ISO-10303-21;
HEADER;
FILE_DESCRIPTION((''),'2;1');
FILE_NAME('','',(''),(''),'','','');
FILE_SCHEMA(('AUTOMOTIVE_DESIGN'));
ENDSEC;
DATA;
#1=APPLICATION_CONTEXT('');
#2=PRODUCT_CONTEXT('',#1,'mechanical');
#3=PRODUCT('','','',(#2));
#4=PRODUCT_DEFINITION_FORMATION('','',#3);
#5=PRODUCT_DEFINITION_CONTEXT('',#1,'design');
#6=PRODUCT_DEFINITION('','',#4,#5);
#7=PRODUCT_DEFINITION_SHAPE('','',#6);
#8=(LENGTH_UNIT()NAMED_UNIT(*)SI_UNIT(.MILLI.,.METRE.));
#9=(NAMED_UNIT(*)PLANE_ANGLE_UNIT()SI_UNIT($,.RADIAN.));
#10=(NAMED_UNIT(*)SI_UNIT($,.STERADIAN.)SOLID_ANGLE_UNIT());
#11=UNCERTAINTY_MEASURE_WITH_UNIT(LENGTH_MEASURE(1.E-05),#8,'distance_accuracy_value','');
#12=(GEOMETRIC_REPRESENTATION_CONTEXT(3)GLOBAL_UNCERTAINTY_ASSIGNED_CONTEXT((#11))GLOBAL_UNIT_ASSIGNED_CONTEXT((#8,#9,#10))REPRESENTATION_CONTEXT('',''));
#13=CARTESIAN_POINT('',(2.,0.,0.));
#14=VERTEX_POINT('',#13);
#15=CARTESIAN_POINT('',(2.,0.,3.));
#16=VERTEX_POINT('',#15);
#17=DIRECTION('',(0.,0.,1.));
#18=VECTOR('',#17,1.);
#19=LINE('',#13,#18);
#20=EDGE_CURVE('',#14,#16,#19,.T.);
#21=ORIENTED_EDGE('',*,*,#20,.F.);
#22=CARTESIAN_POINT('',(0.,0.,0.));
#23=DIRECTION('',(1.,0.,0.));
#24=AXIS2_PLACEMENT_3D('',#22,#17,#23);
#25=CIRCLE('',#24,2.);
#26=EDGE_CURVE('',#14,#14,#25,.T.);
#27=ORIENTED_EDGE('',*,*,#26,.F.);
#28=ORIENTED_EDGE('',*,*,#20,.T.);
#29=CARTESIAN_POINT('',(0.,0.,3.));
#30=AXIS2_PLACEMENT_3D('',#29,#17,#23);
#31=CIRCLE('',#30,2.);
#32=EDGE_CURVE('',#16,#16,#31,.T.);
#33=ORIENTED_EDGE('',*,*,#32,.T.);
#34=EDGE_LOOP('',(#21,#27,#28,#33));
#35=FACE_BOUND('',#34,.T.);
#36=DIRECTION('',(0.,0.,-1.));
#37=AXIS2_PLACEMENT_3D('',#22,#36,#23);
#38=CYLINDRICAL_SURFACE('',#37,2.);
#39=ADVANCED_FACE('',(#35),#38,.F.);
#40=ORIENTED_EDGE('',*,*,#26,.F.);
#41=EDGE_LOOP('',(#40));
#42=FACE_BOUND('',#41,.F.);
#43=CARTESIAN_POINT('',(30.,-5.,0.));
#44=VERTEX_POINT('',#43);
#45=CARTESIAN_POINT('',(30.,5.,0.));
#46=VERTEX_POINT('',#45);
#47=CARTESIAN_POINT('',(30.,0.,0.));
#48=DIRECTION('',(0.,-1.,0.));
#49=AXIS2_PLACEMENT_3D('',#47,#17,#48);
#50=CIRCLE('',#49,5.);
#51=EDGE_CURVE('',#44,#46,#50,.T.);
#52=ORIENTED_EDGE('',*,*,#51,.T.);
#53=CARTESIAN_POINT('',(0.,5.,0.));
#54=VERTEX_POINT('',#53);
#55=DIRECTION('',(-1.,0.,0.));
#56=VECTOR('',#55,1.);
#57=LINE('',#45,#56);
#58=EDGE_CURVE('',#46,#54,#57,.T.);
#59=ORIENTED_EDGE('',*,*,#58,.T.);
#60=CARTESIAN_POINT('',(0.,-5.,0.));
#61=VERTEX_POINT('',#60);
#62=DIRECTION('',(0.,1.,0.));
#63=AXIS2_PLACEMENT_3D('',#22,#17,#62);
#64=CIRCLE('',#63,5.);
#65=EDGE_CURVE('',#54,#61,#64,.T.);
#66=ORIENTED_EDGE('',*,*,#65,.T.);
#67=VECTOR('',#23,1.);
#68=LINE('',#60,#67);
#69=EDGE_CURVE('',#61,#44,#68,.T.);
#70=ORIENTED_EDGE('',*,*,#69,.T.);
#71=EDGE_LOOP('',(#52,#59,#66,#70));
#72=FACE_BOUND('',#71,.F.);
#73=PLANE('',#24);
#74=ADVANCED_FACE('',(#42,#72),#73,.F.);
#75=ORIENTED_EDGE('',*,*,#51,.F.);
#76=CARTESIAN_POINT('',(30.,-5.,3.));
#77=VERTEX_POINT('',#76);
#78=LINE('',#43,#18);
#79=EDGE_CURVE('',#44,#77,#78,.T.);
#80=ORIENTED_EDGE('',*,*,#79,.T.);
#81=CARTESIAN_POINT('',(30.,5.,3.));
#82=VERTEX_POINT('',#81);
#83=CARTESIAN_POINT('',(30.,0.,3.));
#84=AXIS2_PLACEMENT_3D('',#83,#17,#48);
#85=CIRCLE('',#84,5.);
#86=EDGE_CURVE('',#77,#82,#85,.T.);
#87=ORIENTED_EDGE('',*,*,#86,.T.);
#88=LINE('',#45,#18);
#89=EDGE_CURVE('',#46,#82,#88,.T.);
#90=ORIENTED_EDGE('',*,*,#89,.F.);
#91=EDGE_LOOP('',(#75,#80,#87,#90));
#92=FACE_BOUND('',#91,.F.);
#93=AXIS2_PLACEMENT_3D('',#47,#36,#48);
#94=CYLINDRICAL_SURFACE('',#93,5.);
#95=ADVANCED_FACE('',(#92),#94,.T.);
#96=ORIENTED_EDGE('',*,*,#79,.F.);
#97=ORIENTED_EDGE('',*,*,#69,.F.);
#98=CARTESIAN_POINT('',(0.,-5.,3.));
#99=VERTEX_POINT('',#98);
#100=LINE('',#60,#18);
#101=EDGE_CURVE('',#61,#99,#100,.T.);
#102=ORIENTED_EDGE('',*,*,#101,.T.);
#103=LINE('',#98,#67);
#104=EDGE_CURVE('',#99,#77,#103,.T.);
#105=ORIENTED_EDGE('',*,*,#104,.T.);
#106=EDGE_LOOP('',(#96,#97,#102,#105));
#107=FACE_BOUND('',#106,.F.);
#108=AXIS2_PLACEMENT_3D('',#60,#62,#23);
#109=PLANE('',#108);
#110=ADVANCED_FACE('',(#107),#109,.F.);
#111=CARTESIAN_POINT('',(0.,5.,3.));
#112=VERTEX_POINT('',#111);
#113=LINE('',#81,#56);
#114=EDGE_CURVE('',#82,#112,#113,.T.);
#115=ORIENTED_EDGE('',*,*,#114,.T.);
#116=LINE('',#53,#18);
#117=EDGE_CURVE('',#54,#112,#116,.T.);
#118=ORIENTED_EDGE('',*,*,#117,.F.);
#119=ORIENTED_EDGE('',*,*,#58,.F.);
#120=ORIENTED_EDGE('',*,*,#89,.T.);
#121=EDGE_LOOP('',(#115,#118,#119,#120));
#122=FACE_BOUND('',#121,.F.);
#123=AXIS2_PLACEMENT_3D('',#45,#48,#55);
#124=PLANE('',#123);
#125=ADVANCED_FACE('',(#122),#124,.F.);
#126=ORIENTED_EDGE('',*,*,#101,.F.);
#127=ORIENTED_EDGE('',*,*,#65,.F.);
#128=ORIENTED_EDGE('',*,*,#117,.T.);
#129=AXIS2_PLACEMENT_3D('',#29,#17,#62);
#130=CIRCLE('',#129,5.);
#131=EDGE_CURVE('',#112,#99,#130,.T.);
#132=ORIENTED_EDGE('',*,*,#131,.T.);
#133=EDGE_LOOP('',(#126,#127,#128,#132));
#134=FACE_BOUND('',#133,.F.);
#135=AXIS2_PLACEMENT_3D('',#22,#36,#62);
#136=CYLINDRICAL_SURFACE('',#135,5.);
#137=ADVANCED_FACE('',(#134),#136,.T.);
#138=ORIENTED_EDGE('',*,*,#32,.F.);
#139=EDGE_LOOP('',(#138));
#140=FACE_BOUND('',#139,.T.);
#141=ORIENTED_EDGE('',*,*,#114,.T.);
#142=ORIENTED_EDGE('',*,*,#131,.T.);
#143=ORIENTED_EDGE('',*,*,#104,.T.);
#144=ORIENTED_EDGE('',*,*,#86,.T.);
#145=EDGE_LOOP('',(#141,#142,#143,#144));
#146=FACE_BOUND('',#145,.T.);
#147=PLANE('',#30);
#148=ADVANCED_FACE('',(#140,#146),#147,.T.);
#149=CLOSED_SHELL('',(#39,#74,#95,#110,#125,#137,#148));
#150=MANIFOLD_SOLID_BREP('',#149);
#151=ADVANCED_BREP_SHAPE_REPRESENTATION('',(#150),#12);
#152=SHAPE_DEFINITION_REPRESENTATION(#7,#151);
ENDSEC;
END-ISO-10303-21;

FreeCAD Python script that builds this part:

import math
import FreeCAD as App
import Part
import Sketcher

V = App.Vector

doc = App.newDocument("Part")
body = doc.addObject("PartDesign::Body", "Body")

# Sketch on XY plane
sketch1 = body.newObject("Sketcher::SketchObject", "Sketch")
sketch1.AttachmentSupport = (doc.getObject("XY_Plane"), [""])
sketch1.MapMode = "FlatFace"
sketch1.addGeometry([
    Part.ArcOfCircle(Part.Circle(V(0, 0, 0), V(0, 0, 1), 5), math.radians(90), math.radians(270)),  # 0
    Part.LineSegment(V(0, -5, 0), V(30, -5, 0)),  # 1
    Part.ArcOfCircle(Part.Circle(V(30, 0, 0), V(0, 0, 1), 5), math.radians(-90), math.radians(90)),  # 2
    Part.LineSegment(V(30, 5, 0), V(0, 5, 0)),  # 3
    Part.Circle(V(0, 0, 0), V(0, 0, 1), 2),  # 4
], False)
sketch1.addConstraint([
    Sketcher.Constraint("Tangent", 0, 2, 1, 1),
    Sketcher.Constraint("Tangent", 1, 2, 2, 1),
    Sketcher.Constraint("Tangent", 2, 2, 3, 1),
    Sketcher.Constraint("Tangent", 3, 2, 0, 1),
    Sketcher.Constraint("Horizontal", 1),
    Sketcher.Constraint("Horizontal", 3),
    Sketcher.Constraint("Coincident", 0, 3, -1, 1),
    Sketcher.Constraint("Coincident", 4, 3, -1, 1),
    Sketcher.Constraint("Diameter", 4, 4.0),
    Sketcher.Constraint("Radius", 0, 5.0),
    Sketcher.Constraint("DistanceX", 1, 1, 1, 2, 30.0),
])
pad1 = body.newObject("PartDesign::Pad", "Pad")
pad1.Profile = sketch1
pad1.Length = 3

doc.recompute()
